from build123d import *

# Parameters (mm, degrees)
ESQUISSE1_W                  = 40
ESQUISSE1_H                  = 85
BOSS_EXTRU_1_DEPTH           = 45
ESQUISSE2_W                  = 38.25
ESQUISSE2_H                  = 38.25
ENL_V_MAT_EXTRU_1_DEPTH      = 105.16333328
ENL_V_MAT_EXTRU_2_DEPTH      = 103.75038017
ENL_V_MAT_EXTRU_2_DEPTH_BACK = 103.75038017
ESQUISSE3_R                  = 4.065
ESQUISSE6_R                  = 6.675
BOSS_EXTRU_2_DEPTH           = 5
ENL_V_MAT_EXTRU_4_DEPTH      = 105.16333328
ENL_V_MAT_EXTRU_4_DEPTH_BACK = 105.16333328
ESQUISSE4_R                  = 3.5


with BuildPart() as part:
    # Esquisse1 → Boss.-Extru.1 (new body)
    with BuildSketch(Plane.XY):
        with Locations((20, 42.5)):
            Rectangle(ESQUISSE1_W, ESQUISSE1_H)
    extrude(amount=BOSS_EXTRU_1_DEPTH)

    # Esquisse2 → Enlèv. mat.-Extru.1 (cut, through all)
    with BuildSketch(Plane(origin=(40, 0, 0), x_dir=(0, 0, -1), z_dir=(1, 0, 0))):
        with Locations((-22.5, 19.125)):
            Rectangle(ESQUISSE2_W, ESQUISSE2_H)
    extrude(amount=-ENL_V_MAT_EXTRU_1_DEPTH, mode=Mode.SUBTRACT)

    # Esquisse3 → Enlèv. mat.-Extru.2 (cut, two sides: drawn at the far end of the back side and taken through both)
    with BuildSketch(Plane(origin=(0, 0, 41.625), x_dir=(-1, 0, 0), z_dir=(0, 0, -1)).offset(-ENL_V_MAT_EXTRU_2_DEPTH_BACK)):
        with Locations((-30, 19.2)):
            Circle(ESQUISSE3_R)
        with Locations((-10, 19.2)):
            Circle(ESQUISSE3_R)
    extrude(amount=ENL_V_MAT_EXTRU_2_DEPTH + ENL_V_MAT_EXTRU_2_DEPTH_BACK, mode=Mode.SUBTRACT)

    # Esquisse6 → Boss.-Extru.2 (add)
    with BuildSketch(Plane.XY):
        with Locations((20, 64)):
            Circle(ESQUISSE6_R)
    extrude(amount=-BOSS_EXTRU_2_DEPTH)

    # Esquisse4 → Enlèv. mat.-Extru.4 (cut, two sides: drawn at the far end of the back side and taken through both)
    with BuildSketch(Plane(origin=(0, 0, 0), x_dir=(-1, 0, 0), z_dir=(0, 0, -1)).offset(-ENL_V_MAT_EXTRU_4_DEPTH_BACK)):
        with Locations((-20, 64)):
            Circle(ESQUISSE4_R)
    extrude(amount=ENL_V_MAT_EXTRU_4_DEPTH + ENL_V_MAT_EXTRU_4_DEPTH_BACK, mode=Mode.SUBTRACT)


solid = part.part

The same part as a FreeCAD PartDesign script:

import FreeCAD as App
import Part
import Sketcher

V = App.Vector


def add_polygon(sketch, points):
    """Adds a closed chain of lines whose ends are joined by coincident constraints."""
    first, n = sketch.GeometryCount, len(points)
    for a, b in zip(points, points[1:] + points[:1]):
        sketch.addGeometry(Part.LineSegment(App.Vector(*a, 0), App.Vector(*b, 0)), False)
    for i in range(n):
        sketch.addConstraint(Sketcher.Constraint("Coincident", first + i, 2, first + (i + 1) % n, 1))

doc = App.newDocument("Part")
params = doc.addObject("Spreadsheet::Sheet", "Params")
for row, (alias, value) in enumerate([
    ("sketch1_width", "40 mm"),
    ("sketch1_height", "85 mm"),
    ("pad1_length", "45 mm"),
    ("sketch2_width", "38.25 mm"),
    ("sketch3_diameter", "8.13 mm"),
    ("sketch4_diameter", "13.35 mm"),
    ("pad2_length", "5 mm"),
    ("sketch5_diameter", "7 mm"),
], start=1):
    params.set(f"A{row}", alias)
    params.set(f"B{row}", "=" + value)
    params.setAlias(f"B{row}", alias)

body = doc.addObject("PartDesign::Body", "Body")

sketch1 = body.newObject("Sketcher::SketchObject", "Sketch")
sketch1.AttachmentSupport = (doc.getObject("XY_Plane"), [""])
sketch1.MapMode = "FlatFace"
add_polygon(sketch1, [(0, 85), (0, 0), (40, 0), (40, 85)])
sketch1.addConstraint([
    Sketcher.Constraint("Vertical", 0),
    Sketcher.Constraint("Horizontal", 1),
    Sketcher.Constraint("Vertical", 2),
    Sketcher.Constraint("Horizontal", 3),
    Sketcher.Constraint("Coincident", 0, 2, -1, 1),
    Sketcher.Constraint("DistanceX", 1, 1, 1, 2, 40.0),
    Sketcher.Constraint("DistanceY", 0, 2, 0, 1, 85.0),
])
sketch1.setExpression("Constraints[9]", "Params.sketch1_width")
sketch1.setExpression("Constraints[10]", "Params.sketch1_height")
pad1 = body.newObject("PartDesign::Pad", "Pad")
pad1.Profile = sketch1
pad1.setExpression("Length", "Params.pad1_length")

sketch2 = body.newObject("Sketcher::SketchObject", "Sketch001")
sketch2.AttachmentSupport = (doc.getObject("YZ_Plane"), [""])
sketch2.MapMode = "FlatFace"
sketch2.AttachmentOffset = App.Placement(V(0, 0, 40), App.Rotation())
add_polygon(sketch2, [(38, 42), (0, 42), (0, 3), (38, 3)])
sketch2.addConstraint([
    Sketcher.Constraint("Horizontal", 0),
    Sketcher.Constraint("Vertical", 1),
    Sketcher.Constraint("Horizontal", 2),
    Sketcher.Constraint("Vertical", 3),
    Sketcher.Constraint("PointOnObject", 0, 2, -2),
    Sketcher.Constraint("Equal", 2, 1),
    Sketcher.Constraint("DistanceX", 0, 2, 0, 1, 38.25),
    Sketcher.Constraint("DistanceY", -1, 1, 0, 2, 41.625),
])
sketch2.setExpression("Constraints[10]", "Params.sketch2_width")
pocket1 = body.newObject("PartDesign::Pocket", "Pocket")
pocket1.Profile = sketch2
pocket1.Type = "ThroughAll"

sketch3 = body.newObject("Sketcher::SketchObject", "Sketch002")
sketch3.AttachmentSupport = (doc.getObject("XY_Plane"), [""])
sketch3.MapMode = "FlatFace"
sketch3.AttachmentOffset = App.Placement(V(0, 0, 41.625), App.Rotation())
sketch3.addGeometry([
    Part.Circle(V(30, 19.2, 0), V(0, 0, 1), 4.1),
    Part.Circle(V(10, 19.2, 0), V(0, 0, 1), 4.1),
], False)
sketch3.addConstraint([
    Sketcher.Constraint("Equal", 0, 1),
    Sketcher.Constraint("Horizontal", 0, 3, 1, 3),
    Sketcher.Constraint("Diameter", 0, 8.13),
    Sketcher.Constraint("DistanceX", -1, 1, 0, 3, 30.0),
    Sketcher.Constraint("DistanceX", -1, 1, 1, 3, 10.0),
    Sketcher.Constraint("DistanceY", -1, 1, 0, 3, 19.2),
])
sketch3.setExpression("Constraints[2]", "Params.sketch3_diameter")
pocket2 = body.newObject("PartDesign::Pocket", "Pocket001")
pocket2.Profile = sketch3
pocket2.Type = "ThroughAll"
pocket2.Midplane = True

sketch4 = body.newObject("Sketcher::SketchObject", "Sketch003")
sketch4.AttachmentSupport = (doc.getObject("XY_Plane"), [""])
sketch4.MapMode = "FlatFace"
sketch4.addGeometry(Part.Circle(V(20, 64, 0), V(0, 0, 1), 7), False)
sketch4.addConstraint([
    Sketcher.Constraint("Diameter", 0, 13.35),
    Sketcher.Constraint("DistanceX", -1, 1, 0, 3, 20.0),
    Sketcher.Constraint("DistanceY", -1, 1, 0, 3, 64.0),
])
sketch4.setExpression("Constraints[0]", "Params.sketch4_diameter")
pad2 = body.newObject("PartDesign::Pad", "Pad001")
pad2.Profile = sketch4
pad2.setExpression("Length", "Params.pad2_length")
pad2.Reversed = True

sketch5 = body.newObject("Sketcher::SketchObject", "Sketch004")
sketch5.AttachmentSupport = (doc.getObject("XY_Plane"), [""])
sketch5.MapMode = "FlatFace"
sketch5.addGeometry(Part.Circle(V(20, 64, 0), V(0, 0, 1), 3.5), False)
sketch5.addConstraint([
    Sketcher.Constraint("Diameter", 0, 7.0),
    Sketcher.Constraint("DistanceX", -1, 1, 0, 3, 20.0),
    Sketcher.Constraint("DistanceY", -1, 1, 0, 3, 64.0),
])
sketch5.setExpression("Constraints[0]", "Params.sketch5_diameter")
pocket3 = body.newObject("PartDesign::Pocket", "Pocket002")
pocket3.Profile = sketch5
pocket3.Type = "ThroughAll"
pocket3.Midplane = True

doc.recompute()
